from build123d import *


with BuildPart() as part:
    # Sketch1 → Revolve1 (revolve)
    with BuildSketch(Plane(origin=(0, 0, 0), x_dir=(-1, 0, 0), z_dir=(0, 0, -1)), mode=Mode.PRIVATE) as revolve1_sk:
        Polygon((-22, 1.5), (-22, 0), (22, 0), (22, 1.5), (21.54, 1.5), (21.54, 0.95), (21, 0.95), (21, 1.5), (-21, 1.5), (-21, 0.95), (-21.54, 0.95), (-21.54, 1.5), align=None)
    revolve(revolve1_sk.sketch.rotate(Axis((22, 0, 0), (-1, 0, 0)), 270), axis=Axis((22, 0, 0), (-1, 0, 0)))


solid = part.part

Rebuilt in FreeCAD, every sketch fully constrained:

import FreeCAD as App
import Part
import Sketcher
Q = App.Units.Quantity

doc = App.newDocument("Part")
body = doc.addObject("PartDesign::Body", "Body")

# Sketch on XY plane
sketch1 = body.newObject("Sketcher::SketchObject", "Sketch")
sketch1.AttachmentSupport = (doc.getObject("XY_Plane"), [""])
sketch1.MapMode = "FlatFace"
sketch1.addGeometry(Part.LineSegment(App.Vector(22, 1.5, 0), App.Vector(22, 0, 0)), False)
sketch1.addGeometry(Part.LineSegment(App.Vector(22, 0, 0), App.Vector(-22, 0, 0)), False)
sketch1.addGeometry(Part.LineSegment(App.Vector(-22, 0, 0), App.Vector(-22, 1.5, 0)), False)
sketch1.addGeometry(Part.LineSegment(App.Vector(-22, 1.5, 0), App.Vector(-21.54, 1.5, 0)), False)
sketch1.addGeometry(Part.LineSegment(App.Vector(-21.54, 1.5, 0), App.Vector(-21.54, 0.95, 0)), False)
sketch1.addGeometry(Part.LineSegment(App.Vector(-21.54, 0.95, 0), App.Vector(-21, 0.95, 0)), False)
sketch1.addGeometry(Part.LineSegment(App.Vector(-21, 0.95, 0), App.Vector(-21, 1.5, 0)), False)
sketch1.addGeometry(Part.LineSegment(App.Vector(-21, 1.5, 0), App.Vector(21, 1.5, 0)), False)
sketch1.addGeometry(Part.LineSegment(App.Vector(21, 1.5, 0), App.Vector(21, 0.95, 0)), False)
sketch1.addGeometry(Part.LineSegment(App.Vector(21, 0.95, 0), App.Vector(21.54, 0.95, 0)), False)
sketch1.addGeometry(Part.LineSegment(App.Vector(21.54, 0.95, 0), App.Vector(21.54, 1.5, 0)), False)
sketch1.addGeometry(Part.LineSegment(App.Vector(21.54, 1.5, 0), App.Vector(22, 1.5, 0)), False)
sketch1.addConstraint(Sketcher.Constraint("Coincident", 0, 2, 1, 1))
sketch1.addConstraint(Sketcher.Constraint("Coincident", 1, 2, 2, 1))
sketch1.addConstraint(Sketcher.Constraint("Coincident", 2, 2, 3, 1))
sketch1.addConstraint(Sketcher.Constraint("Coincident", 3, 2, 4, 1))
sketch1.addConstraint(Sketcher.Constraint("Coincident", 4, 2, 5, 1))
sketch1.addConstraint(Sketcher.Constraint("Coincident", 5, 2, 6, 1))
sketch1.addConstraint(Sketcher.Constraint("Coincident", 6, 2, 7, 1))
sketch1.addConstraint(Sketcher.Constraint("Coincident", 7, 2, 8, 1))
sketch1.addConstraint(Sketcher.Constraint("Coincident", 8, 2, 9, 1))
sketch1.addConstraint(Sketcher.Constraint("Coincident", 9, 2, 10, 1))
sketch1.addConstraint(Sketcher.Constraint("Coincident", 10, 2, 11, 1))
sketch1.addConstraint(Sketcher.Constraint("Coincident", 11, 2, 0, 1))
sketch1.addConstraint(Sketcher.Constraint("Vertical", 0))
sketch1.addConstraint(Sketcher.Constraint("Horizontal", 1))
sketch1.addConstraint(Sketcher.Constraint("Vertical", 2))
sketch1.addConstraint(Sketcher.Constraint("Horizontal", 3))
sketch1.addConstraint(Sketcher.Constraint("Vertical", 4))
sketch1.addConstraint(Sketcher.Constraint("Horizontal", 5))
sketch1.addConstraint(Sketcher.Constraint("Vertical", 6))
sketch1.addConstraint(Sketcher.Constraint("Horizontal", 7))
sketch1.addConstraint(Sketcher.Constraint("Vertical", 8))
sketch1.addConstraint(Sketcher.Constraint("Horizontal", 9))
sketch1.addConstraint(Sketcher.Constraint("Vertical", 10))
sketch1.addConstraint(Sketcher.Constraint("Horizontal", 11))
sketch1.addConstraint(Sketcher.Constraint("Symmetric", 0, 2, 1, 2, -1, 1))
sketch1.addConstraint(Sketcher.Constraint("Symmetric", 5, 2, 8, 2, -2))
sketch1.addConstraint(Sketcher.Constraint("Symmetric", 3, 2, 10, 2, -2))
sketch1.addConstraint(Sketcher.Constraint("Horizontal", 3, 2, 6, 2))
sketch1.addConstraint(Sketcher.Constraint("DistanceX", 1, 2, 1, 1, Q("44 mm")))
sketch1.addConstraint(Sketcher.Constraint("DistanceX", 7, 1, 7, 2, Q("42 mm")))
sketch1.addConstraint(Sketcher.Constraint("DistanceY", 0, 2, 0, 1, Q("1.5 mm")))
sketch1.addConstraint(Sketcher.Constraint("DistanceX", 3, 1, 3, 2, Q("0.46 mm")))
sketch1.addConstraint(Sketcher.Constraint("DistanceY", 4, 2, 4, 1, Q("0.55 mm")))
revolution = body.newObject("PartDesign::Revolution", "Revolution")
revolution.Profile = sketch1
revolution.ReferenceAxis = (sketch1, ["H_Axis"])
revolution.Angle = 360

doc.recompute()
